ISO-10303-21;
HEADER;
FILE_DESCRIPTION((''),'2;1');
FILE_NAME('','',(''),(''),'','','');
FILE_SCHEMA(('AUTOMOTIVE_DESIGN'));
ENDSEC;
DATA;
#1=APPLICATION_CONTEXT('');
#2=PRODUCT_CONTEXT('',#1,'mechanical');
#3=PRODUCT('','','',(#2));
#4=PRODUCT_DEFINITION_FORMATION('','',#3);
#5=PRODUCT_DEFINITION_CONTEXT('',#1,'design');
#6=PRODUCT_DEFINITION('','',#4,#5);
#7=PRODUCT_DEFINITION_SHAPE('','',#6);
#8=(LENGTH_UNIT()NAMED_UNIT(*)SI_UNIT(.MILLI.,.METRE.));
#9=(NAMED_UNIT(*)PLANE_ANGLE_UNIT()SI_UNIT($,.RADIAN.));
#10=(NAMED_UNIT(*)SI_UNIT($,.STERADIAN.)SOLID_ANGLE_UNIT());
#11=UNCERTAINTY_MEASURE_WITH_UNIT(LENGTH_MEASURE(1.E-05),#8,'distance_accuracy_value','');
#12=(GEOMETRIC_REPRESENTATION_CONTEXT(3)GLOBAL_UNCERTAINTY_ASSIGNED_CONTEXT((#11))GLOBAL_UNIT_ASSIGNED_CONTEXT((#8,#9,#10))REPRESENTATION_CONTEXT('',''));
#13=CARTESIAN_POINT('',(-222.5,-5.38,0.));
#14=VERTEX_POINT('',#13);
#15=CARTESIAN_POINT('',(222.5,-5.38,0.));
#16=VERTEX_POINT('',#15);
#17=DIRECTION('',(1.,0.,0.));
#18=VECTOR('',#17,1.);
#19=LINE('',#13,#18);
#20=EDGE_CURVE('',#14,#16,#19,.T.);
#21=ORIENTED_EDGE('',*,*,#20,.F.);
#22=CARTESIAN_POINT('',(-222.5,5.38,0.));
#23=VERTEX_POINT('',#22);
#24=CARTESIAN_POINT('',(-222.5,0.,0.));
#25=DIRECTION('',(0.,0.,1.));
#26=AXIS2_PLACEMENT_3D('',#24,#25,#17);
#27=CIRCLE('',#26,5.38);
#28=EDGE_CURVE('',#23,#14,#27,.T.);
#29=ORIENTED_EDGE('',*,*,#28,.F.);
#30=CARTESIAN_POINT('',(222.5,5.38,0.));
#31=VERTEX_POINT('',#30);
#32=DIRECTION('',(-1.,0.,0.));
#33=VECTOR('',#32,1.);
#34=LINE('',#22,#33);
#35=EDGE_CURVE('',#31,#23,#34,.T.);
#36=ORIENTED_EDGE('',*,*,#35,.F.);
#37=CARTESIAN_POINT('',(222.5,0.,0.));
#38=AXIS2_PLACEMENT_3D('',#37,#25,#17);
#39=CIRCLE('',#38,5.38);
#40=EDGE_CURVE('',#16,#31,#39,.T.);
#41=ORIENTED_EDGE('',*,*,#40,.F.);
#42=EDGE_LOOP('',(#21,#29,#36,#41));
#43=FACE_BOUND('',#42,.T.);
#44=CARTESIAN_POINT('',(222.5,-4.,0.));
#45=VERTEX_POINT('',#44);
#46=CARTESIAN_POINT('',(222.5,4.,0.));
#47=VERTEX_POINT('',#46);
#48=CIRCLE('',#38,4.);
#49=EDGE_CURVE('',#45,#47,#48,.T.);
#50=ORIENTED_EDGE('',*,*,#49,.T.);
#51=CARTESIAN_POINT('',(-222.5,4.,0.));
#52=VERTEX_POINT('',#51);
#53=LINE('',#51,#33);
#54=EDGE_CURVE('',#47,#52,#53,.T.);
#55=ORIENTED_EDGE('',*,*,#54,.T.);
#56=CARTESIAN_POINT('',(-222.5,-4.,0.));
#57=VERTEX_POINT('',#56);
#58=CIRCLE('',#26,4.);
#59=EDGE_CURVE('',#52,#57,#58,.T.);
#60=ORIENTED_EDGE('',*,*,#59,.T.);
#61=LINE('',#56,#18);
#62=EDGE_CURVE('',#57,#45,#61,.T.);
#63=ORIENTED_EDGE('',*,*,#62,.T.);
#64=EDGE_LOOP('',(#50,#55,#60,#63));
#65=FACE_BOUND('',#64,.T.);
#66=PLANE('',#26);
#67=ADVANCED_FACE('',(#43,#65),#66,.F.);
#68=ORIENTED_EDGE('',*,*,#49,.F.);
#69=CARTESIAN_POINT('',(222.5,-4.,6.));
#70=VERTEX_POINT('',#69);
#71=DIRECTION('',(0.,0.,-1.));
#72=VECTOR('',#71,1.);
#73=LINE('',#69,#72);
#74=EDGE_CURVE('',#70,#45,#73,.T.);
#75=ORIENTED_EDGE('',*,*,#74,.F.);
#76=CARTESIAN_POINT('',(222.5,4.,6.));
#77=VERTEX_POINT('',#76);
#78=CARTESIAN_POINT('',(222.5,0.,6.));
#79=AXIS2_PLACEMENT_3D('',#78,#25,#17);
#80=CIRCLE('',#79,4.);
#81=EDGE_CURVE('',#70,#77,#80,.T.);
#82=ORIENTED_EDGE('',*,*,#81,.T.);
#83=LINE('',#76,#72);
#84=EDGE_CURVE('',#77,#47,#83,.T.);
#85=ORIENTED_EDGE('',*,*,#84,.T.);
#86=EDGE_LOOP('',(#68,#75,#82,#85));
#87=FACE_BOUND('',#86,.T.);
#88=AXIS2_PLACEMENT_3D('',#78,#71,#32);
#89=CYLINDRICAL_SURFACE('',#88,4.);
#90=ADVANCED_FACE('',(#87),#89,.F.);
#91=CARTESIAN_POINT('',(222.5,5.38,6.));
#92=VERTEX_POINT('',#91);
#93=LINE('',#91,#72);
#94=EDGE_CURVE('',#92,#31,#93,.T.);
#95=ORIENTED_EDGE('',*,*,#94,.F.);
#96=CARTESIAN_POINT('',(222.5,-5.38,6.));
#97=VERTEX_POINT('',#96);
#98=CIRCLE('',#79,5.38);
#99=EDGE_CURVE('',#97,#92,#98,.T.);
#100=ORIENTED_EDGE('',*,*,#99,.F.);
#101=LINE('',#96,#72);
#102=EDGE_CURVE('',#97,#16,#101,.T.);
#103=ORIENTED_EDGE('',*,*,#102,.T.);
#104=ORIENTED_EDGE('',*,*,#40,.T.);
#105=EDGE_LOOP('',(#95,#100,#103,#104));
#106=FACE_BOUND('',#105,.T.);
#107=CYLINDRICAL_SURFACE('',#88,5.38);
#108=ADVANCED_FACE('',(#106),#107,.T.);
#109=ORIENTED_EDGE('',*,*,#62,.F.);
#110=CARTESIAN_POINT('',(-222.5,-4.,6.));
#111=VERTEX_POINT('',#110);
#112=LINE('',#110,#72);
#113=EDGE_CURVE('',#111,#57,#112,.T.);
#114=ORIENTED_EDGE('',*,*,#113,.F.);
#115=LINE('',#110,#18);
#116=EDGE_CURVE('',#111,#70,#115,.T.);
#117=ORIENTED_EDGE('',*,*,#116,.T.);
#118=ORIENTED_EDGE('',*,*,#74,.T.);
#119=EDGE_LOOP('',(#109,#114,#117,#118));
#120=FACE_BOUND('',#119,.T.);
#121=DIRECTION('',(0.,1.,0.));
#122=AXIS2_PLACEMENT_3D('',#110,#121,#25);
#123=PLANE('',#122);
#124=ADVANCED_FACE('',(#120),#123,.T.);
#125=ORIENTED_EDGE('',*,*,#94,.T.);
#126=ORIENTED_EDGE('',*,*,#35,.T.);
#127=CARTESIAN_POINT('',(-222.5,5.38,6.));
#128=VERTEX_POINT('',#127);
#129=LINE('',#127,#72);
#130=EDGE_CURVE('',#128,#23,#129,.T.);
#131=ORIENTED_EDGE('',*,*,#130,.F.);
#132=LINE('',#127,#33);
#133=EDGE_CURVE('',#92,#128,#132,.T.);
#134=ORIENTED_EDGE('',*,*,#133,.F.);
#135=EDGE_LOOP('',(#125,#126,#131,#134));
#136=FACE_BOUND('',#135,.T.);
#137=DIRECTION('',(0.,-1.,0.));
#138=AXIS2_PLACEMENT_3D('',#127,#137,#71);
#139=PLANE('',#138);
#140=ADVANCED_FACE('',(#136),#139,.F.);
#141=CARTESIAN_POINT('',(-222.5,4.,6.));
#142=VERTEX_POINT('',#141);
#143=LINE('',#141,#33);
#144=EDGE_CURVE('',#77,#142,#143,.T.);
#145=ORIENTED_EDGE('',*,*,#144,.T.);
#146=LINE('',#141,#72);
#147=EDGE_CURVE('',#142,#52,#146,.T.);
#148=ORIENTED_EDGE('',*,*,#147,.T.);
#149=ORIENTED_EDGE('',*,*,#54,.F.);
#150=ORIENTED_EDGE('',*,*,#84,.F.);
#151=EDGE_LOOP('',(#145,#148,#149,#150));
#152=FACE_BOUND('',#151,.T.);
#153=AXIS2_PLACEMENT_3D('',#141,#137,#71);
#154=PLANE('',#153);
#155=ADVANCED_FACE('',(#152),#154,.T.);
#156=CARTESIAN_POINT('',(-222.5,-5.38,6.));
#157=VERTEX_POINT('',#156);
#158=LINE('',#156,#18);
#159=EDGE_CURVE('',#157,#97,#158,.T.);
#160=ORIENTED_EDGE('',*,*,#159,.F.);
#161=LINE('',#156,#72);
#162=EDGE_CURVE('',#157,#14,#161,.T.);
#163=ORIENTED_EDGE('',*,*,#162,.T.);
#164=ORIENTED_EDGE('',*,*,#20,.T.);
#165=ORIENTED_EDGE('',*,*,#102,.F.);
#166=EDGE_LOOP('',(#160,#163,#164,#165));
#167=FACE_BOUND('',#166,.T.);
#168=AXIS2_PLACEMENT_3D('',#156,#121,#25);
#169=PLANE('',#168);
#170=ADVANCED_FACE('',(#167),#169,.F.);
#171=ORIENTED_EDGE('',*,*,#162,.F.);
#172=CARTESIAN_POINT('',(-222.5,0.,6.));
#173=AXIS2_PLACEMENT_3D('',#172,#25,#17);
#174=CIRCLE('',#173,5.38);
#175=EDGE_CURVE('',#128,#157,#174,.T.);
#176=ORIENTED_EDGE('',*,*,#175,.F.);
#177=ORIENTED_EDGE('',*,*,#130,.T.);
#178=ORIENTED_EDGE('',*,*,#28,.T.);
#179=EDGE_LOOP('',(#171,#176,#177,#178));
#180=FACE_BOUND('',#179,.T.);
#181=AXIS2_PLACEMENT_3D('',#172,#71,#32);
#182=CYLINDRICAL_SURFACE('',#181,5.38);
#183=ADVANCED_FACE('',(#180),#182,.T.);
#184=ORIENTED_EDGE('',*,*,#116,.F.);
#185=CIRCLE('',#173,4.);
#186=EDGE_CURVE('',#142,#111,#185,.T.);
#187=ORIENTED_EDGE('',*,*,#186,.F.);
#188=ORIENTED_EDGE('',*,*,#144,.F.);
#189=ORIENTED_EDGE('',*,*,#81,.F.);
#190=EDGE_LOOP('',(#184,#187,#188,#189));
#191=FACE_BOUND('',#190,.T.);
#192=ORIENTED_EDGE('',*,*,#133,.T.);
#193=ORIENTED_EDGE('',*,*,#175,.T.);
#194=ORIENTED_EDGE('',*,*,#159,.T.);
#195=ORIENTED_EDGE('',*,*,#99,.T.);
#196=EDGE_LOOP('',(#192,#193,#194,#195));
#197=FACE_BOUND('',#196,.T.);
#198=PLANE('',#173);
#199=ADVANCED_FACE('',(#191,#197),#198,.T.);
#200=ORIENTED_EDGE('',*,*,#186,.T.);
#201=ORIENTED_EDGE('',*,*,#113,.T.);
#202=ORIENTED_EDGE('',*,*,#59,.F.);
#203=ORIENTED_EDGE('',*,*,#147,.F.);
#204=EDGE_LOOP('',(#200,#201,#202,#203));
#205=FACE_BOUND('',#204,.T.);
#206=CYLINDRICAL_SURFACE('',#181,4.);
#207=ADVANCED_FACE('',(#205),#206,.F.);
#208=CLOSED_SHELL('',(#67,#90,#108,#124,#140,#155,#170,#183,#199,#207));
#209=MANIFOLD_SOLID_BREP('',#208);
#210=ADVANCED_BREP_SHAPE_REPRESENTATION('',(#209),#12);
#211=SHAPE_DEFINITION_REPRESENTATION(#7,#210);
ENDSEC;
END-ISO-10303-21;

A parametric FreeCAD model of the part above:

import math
import FreeCAD as App
import Part
import Sketcher
Q = App.Units.Quantity

doc = App.newDocument("Part")
params = doc.addObject("Spreadsheet::Sheet", "Params")
for row, (alias, value) in enumerate([
    ("sketch1_radius", "4 mm"),
    ("sketch1_width", "445 mm"),
    ("sketch1_radius2", "5.38 mm"),
    ("pad1_length", "6 mm"),
], start=1):
    params.set(f"A{row}", alias)
    params.set(f"B{row}", "=" + value)
    params.setAlias(f"B{row}", alias)

body = doc.addObject("PartDesign::Body", "Body")

# Sketch on XY plane
sketch1 = body.newObject("Sketcher::SketchObject", "Sketch")
sketch1.AttachmentSupport = (doc.getObject("XY_Plane"), [""])
sketch1.MapMode = "FlatFace"
sketch1.addGeometry([
    Part.LineSegment(App.Vector(222.5, 5.4, 0), App.Vector(-222.5, 5.4, 0)),  # 0
    Part.ArcOfCircle(Part.Circle(App.Vector(-222.5, 0, 0), App.Vector(0, 0, 1), 5.4), math.radians(90), math.radians(270)),  # 1
    Part.LineSegment(App.Vector(-222.5, -5.4, 0), App.Vector(222.5, -5.4, 0)),  # 2
    Part.ArcOfCircle(Part.Circle(App.Vector(222.5, 0, 0), App.Vector(0, 0, 1), 5.4), math.radians(-90), math.radians(90)),  # 3
    Part.ArcOfCircle(Part.Circle(App.Vector(-222.5, 0, 0), App.Vector(0, 0, 1), 4), math.radians(90), math.radians(270)),  # 4
    Part.LineSegment(App.Vector(-222.5, 4, 0), App.Vector(222.5, 4, 0)),  # 5
    Part.ArcOfCircle(Part.Circle(App.Vector(222.5, 0, 0), App.Vector(0, 0, 1), 4), math.radians(-90), math.radians(90)),  # 6
    Part.LineSegment(App.Vector(222.5, -4, 0), App.Vector(-222.5, -4, 0)),  # 7
], False)
sketch1.addConstraint([
    Sketcher.Constraint("Tangent", 0, 2, 1, 1),
    Sketcher.Constraint("Tangent", 1, 2, 2, 1),
    Sketcher.Constraint("Tangent", 2, 2, 3, 1),
    Sketcher.Constraint("Tangent", 3, 2, 0, 1),
    Sketcher.Constraint("Tangent", 4, 1, 5, 1),
    Sketcher.Constraint("Tangent", 5, 2, 6, 2),
    Sketcher.Constraint("Tangent", 6, 1, 7, 1),
    Sketcher.Constraint("Tangent", 7, 2, 4, 2),
    Sketcher.Constraint("Horizontal", 0),
    Sketcher.Constraint("Horizontal", 2),
    Sketcher.Constraint("Horizontal", 5),
    Sketcher.Constraint("Horizontal", 7),
    Sketcher.Constraint("Coincident", 4, 3, 1, 3),
    Sketcher.Constraint("Symmetric", 1, 3, 3, 3, -1, 1),
    Sketcher.Constraint("Vertical", 6, 3, 2, 2),
    Sketcher.Constraint("Radius", 4, Q("4 mm")),
    Sketcher.Constraint("DistanceX", 0, 2, 0, 1, Q("445 mm")),
    Sketcher.Constraint("Radius", 1, Q("5.38 mm")),
])
sketch1.setExpression("Constraints[15]", "Params.sketch1_radius")
sketch1.setExpression("Constraints[16]", "Params.sketch1_width")
sketch1.setExpression("Constraints[17]", "Params.sketch1_radius2")
pad1 = body.newObject("PartDesign::Pad", "Pad")
pad1.Profile = sketch1
pad1.setExpression("Length", "Params.pad1_length")

doc.recompute()
